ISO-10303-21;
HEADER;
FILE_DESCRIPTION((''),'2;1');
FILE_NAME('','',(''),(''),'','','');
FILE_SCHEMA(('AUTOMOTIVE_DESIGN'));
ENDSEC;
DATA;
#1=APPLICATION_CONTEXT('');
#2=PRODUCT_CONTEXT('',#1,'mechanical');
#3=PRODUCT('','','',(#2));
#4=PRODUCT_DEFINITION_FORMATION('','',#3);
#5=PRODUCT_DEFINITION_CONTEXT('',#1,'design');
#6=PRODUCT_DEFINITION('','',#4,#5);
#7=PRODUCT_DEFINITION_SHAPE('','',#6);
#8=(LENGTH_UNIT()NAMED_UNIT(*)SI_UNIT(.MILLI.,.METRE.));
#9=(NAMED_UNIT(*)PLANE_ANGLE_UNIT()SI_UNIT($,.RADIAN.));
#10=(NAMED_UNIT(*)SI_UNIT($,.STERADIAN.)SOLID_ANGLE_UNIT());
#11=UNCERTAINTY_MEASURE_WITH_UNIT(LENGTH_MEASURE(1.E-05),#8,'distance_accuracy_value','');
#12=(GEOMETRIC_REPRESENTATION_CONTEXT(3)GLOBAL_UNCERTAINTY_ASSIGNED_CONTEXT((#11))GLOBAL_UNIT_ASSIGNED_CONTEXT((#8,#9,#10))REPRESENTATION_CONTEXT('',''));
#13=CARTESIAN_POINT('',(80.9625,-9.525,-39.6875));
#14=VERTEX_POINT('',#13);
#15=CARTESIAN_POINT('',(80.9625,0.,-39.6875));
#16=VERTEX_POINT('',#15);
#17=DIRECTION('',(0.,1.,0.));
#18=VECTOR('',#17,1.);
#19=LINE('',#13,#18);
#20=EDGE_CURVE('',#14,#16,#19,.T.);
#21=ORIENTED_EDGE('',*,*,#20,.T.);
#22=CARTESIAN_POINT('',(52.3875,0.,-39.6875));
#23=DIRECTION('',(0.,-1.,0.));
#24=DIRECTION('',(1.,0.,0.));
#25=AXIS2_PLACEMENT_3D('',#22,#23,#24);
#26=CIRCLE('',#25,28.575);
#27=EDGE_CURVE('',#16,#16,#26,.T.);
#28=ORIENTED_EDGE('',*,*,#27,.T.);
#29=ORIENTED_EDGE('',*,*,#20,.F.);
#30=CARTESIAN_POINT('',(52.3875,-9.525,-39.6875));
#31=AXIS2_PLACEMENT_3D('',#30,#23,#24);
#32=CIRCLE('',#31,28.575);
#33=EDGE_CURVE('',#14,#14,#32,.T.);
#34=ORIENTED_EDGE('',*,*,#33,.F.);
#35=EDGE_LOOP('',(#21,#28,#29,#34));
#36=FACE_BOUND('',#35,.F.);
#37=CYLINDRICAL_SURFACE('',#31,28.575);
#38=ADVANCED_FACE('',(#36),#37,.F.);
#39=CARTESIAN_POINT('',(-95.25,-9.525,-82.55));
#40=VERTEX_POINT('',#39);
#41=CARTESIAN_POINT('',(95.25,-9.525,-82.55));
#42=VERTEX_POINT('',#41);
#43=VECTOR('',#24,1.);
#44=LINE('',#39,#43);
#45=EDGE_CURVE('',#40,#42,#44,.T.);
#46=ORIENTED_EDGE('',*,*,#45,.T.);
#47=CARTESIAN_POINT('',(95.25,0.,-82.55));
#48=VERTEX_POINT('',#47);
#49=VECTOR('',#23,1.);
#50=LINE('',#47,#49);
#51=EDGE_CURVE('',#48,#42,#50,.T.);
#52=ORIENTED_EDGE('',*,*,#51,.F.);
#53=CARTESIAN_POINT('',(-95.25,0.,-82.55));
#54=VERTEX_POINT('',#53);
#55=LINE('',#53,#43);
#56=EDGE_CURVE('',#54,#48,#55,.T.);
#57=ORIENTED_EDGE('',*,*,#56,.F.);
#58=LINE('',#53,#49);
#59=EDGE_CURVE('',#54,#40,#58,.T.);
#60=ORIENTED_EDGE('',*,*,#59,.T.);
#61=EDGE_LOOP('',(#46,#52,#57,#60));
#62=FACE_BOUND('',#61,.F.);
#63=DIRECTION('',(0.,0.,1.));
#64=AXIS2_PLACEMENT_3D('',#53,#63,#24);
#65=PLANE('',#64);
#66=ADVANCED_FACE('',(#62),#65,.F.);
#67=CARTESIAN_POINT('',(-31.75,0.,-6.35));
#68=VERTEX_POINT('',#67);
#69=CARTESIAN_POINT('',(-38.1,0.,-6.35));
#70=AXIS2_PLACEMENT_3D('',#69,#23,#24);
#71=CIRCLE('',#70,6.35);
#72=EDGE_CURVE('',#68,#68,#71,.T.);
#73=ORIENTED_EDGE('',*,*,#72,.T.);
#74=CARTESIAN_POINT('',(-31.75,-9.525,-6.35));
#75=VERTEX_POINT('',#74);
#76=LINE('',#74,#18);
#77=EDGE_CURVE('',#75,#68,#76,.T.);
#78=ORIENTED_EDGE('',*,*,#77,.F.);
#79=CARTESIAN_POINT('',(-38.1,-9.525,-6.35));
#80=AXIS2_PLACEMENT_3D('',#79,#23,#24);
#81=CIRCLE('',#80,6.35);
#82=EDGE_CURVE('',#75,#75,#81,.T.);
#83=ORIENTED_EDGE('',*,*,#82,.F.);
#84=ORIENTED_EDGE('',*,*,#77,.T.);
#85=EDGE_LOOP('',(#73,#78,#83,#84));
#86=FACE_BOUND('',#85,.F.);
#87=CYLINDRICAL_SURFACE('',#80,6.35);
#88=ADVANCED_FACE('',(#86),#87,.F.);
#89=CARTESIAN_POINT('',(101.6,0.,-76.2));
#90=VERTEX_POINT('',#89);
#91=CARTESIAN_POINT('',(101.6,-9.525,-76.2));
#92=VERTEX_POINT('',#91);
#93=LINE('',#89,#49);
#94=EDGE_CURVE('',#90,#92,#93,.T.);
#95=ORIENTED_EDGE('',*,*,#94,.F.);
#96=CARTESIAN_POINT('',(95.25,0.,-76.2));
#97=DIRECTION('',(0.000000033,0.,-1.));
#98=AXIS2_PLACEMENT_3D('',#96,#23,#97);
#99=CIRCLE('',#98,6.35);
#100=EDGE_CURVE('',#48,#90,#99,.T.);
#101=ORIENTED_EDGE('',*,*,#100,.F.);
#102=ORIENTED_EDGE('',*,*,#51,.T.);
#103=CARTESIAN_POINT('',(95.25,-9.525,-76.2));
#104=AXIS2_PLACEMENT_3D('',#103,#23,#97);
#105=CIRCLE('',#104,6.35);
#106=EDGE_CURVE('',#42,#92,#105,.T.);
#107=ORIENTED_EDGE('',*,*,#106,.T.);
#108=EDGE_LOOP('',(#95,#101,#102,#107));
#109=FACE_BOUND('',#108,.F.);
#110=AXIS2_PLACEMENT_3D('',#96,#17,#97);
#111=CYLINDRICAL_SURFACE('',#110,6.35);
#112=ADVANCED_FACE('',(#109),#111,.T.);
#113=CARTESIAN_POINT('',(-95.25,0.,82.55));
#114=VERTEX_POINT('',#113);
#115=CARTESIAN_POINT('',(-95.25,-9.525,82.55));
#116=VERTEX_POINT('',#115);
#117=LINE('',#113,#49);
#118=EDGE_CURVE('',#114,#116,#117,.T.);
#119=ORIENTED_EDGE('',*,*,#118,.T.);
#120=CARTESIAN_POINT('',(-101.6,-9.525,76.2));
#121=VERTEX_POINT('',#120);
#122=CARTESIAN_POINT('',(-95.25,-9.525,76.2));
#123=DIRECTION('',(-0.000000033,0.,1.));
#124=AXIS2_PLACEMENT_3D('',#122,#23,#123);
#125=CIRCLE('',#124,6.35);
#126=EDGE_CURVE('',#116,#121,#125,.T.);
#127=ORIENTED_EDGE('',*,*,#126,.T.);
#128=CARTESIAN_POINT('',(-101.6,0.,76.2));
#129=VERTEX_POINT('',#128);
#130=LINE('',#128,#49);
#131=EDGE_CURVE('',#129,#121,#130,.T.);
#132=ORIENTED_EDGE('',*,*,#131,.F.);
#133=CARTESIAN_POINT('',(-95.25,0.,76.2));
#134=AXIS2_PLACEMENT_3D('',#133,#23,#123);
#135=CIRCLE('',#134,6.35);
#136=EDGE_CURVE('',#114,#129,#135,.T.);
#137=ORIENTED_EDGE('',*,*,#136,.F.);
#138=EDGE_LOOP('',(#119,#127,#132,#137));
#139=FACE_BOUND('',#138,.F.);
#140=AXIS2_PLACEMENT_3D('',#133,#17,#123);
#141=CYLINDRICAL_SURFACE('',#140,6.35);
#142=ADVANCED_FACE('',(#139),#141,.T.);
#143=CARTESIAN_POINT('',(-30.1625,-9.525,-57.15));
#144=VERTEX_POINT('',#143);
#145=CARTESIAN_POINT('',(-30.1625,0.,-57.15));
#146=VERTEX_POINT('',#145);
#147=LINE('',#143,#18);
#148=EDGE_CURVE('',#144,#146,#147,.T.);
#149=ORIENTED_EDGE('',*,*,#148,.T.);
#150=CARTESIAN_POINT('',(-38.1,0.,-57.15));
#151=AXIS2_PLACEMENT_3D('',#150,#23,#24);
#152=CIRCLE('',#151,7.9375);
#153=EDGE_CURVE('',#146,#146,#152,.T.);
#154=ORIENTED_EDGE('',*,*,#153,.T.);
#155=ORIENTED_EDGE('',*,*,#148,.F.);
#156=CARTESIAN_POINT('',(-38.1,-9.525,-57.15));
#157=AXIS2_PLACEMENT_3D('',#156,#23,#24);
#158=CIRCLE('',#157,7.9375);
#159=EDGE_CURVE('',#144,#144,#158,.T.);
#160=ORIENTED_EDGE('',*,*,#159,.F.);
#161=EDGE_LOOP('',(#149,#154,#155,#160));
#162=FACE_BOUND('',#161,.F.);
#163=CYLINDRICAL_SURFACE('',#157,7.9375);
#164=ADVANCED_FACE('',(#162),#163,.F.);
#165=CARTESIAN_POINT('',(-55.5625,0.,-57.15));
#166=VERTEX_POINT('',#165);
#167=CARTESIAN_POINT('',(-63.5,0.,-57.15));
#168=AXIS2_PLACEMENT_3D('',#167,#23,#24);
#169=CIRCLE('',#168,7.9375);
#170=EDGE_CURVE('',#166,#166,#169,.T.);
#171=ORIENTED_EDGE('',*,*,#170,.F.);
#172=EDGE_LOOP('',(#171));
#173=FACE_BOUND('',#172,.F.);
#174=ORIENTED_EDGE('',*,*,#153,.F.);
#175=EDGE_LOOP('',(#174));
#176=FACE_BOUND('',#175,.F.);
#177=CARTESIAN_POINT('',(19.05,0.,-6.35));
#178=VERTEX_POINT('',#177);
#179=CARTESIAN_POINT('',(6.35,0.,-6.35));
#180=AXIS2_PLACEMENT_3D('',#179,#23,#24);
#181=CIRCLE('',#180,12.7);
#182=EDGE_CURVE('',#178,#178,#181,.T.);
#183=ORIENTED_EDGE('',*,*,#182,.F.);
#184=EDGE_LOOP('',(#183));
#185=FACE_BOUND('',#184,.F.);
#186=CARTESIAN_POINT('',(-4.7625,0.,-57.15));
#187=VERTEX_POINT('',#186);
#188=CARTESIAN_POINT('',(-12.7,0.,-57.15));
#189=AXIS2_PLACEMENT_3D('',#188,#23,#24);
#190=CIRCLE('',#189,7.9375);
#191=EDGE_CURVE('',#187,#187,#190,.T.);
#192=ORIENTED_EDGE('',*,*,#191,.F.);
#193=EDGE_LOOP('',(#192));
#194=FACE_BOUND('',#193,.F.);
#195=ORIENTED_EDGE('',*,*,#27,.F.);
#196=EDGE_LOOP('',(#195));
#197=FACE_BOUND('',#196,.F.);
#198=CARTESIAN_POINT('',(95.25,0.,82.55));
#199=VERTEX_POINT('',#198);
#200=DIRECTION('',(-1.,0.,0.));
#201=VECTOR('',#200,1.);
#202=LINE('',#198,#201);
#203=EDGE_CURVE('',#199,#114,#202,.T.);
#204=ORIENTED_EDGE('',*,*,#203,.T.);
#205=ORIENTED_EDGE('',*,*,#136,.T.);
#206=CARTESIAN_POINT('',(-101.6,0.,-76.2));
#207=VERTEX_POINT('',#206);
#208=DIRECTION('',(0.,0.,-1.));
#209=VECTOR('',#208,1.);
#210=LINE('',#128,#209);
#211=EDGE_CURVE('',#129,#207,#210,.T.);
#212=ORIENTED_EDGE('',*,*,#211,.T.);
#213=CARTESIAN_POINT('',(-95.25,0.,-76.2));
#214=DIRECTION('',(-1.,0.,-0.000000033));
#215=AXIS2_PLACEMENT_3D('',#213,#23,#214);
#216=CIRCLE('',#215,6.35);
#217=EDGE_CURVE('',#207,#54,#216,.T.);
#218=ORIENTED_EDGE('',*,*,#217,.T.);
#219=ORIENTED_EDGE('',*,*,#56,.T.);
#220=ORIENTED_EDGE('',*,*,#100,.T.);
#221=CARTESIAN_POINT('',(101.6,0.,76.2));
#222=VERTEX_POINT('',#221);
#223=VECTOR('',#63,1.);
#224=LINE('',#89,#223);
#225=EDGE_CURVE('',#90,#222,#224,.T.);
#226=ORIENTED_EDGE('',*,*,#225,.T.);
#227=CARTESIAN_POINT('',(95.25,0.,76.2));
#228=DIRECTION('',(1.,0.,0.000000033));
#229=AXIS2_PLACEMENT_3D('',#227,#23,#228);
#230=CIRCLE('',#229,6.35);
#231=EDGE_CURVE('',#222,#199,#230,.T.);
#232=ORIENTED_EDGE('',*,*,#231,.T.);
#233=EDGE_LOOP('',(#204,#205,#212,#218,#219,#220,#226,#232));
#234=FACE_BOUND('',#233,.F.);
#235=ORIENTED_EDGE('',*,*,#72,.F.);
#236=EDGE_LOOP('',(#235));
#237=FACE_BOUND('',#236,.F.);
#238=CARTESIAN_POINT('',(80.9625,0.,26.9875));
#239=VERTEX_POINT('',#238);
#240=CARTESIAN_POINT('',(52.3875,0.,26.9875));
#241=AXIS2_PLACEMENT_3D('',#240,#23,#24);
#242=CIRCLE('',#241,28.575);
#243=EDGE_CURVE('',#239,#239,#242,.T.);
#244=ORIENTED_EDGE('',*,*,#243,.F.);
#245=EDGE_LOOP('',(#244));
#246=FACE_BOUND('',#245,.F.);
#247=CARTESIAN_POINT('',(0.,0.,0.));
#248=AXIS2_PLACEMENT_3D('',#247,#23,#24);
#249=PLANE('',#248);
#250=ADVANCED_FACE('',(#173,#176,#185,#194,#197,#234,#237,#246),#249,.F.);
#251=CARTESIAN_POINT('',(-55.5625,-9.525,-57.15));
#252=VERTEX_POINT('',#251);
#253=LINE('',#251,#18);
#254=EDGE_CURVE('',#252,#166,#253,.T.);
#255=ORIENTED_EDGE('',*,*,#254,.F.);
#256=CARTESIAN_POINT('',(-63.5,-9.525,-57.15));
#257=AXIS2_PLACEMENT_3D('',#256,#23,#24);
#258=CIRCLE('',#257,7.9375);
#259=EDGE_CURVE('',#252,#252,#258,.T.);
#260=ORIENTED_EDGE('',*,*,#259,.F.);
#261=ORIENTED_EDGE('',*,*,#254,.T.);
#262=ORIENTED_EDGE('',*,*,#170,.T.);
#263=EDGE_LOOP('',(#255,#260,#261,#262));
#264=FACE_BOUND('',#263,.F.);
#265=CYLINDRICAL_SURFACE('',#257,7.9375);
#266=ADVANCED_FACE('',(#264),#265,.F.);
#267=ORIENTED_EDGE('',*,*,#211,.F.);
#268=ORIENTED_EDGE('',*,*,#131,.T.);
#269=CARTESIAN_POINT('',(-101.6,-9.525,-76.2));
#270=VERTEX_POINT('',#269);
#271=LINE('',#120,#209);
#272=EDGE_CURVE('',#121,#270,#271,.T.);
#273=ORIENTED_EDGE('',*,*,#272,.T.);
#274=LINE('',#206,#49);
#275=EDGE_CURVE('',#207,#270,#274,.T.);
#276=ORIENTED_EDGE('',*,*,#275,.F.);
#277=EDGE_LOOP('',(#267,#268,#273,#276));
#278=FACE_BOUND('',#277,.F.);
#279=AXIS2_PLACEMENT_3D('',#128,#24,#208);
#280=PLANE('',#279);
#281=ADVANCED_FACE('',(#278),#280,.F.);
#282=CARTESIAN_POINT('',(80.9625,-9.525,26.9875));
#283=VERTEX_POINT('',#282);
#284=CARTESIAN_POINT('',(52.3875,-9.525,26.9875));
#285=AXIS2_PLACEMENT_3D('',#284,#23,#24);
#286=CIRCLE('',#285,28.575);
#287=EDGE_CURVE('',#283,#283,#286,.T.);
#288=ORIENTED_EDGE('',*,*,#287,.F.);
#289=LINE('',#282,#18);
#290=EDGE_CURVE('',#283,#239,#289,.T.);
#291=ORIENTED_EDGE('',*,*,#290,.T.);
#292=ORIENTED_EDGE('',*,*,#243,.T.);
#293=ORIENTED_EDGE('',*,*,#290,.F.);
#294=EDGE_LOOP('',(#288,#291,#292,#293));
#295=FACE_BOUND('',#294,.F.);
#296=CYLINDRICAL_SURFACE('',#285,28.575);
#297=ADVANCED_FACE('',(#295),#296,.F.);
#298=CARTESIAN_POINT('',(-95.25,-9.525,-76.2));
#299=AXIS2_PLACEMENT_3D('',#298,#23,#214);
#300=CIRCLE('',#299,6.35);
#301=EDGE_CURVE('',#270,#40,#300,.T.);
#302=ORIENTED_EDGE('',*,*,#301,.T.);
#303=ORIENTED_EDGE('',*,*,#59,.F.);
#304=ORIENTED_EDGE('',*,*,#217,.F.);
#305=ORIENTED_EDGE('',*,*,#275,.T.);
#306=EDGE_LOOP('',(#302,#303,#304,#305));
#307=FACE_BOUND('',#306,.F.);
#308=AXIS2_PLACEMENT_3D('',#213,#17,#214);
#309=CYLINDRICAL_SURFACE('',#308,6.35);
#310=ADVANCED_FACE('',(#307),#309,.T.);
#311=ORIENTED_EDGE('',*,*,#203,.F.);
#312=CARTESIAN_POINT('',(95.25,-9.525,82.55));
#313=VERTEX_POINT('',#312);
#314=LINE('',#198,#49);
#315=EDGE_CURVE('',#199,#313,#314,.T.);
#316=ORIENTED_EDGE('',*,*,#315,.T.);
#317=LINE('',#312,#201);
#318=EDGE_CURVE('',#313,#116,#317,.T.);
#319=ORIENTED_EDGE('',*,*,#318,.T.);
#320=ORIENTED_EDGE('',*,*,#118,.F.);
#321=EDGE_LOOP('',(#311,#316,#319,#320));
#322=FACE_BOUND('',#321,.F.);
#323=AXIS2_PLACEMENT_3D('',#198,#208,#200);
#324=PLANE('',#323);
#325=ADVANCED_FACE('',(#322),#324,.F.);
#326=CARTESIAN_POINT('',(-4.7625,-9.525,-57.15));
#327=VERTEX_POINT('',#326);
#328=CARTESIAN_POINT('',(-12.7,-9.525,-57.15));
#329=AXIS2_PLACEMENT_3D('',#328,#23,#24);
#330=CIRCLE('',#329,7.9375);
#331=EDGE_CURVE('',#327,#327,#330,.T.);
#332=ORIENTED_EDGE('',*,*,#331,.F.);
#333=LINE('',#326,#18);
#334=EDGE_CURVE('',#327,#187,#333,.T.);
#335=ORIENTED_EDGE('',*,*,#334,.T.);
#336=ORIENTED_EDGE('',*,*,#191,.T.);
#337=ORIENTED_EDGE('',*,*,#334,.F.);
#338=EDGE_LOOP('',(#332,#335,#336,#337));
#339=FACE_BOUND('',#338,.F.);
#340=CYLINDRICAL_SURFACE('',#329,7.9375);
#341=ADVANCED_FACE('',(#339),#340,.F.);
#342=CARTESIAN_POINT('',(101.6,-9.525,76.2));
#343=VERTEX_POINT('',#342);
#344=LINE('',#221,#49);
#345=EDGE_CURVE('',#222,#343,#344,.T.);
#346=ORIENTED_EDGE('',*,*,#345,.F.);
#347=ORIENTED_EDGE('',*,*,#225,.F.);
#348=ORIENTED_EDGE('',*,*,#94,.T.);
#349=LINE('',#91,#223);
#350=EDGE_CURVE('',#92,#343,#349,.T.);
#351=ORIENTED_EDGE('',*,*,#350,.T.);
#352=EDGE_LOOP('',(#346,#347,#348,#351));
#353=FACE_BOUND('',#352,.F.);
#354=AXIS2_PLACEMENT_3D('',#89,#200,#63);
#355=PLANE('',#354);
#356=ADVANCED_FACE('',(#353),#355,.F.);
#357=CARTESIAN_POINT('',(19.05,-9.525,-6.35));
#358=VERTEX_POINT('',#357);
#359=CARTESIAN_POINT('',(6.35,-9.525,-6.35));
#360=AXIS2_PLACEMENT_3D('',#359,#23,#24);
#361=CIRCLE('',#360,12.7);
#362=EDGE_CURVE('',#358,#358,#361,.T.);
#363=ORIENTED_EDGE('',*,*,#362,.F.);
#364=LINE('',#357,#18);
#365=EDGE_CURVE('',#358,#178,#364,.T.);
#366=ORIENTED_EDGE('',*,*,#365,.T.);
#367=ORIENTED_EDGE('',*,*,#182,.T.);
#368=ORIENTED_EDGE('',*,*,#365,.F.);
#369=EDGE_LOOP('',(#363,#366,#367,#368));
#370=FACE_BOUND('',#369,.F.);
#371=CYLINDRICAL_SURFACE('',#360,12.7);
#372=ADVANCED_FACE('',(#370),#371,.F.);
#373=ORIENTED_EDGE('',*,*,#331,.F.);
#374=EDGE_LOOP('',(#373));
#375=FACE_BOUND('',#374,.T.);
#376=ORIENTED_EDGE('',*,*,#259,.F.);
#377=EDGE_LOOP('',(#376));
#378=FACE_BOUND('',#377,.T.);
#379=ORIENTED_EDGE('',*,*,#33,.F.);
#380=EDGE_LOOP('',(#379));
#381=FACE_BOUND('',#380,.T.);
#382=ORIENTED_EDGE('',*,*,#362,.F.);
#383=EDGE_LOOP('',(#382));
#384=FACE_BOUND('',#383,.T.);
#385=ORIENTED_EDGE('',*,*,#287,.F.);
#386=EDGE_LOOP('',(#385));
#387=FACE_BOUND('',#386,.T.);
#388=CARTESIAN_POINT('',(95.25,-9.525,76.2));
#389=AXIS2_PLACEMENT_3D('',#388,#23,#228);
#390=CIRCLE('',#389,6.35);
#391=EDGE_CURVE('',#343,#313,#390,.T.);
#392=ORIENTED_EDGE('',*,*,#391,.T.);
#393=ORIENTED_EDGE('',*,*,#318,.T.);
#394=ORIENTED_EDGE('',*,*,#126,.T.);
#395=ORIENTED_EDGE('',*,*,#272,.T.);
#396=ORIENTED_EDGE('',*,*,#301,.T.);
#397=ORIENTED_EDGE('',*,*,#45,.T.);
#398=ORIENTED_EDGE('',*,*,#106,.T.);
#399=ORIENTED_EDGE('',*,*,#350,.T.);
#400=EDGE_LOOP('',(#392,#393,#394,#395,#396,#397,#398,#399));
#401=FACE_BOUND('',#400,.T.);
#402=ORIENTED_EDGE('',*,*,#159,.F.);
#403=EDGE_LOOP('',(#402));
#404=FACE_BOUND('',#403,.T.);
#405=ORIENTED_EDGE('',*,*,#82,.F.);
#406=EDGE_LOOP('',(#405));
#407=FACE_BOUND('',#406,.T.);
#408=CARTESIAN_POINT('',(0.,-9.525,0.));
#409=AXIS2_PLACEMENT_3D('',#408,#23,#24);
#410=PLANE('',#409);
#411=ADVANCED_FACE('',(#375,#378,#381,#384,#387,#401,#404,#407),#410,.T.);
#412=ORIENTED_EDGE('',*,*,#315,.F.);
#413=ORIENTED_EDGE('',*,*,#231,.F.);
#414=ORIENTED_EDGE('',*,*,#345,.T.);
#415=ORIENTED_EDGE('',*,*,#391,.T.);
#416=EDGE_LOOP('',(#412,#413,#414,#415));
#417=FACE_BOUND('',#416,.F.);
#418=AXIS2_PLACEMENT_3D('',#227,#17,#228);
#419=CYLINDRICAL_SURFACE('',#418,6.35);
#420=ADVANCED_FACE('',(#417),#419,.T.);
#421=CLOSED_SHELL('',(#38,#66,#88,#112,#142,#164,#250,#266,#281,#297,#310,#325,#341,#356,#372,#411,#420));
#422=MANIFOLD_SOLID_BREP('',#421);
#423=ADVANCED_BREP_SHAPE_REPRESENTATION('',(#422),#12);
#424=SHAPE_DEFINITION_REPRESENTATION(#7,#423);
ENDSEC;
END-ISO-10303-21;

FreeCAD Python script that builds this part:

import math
import FreeCAD as App
import Part
import Sketcher
Q = App.Units.Quantity

doc = App.newDocument("Part")
body = doc.addObject("PartDesign::Body", "Body")

# Sketch on XZ plane
sketch1 = doc.addObject("Sketcher::SketchObject", "Sketch")
body.addObject(sketch1)
sketch1.AttachmentSupport = (doc.XZ_Plane, [""])
sketch1.MapMode = "FlatFace"
sketch1.addGeometry([
    Part.LineSegment(App.Vector(-95, -83, 0), App.Vector(95, -83, 0)),  # 0
    Part.ArcOfCircle(Part.Circle(App.Vector(95, -76, 0), App.Vector(0, 0, 1), 6), math.radians(-90), math.radians(0)),  # 1
    Part.LineSegment(App.Vector(102, -76, 0), App.Vector(102, 76, 0)),  # 2
    Part.ArcOfCircle(Part.Circle(App.Vector(95, 76, 0), App.Vector(0, 0, 1), 6), math.radians(0), math.radians(90)),  # 3
    Part.LineSegment(App.Vector(95, 83, 0), App.Vector(-95, 83, 0)),  # 4
    Part.ArcOfCircle(Part.Circle(App.Vector(-95, 76, 0), App.Vector(0, 0, 1), 6), math.radians(90), math.radians(180)),  # 5
    Part.LineSegment(App.Vector(-102, 76, 0), App.Vector(-102, -76, 0)),  # 6
    Part.ArcOfCircle(Part.Circle(App.Vector(-95, -76, 0), App.Vector(0, 0, 1), 6), math.radians(-180), math.radians(-90)),  # 7
], False)
sketch1.addConstraint([
    Sketcher.Constraint("Tangent", 0, 2, 1, 1),
    Sketcher.Constraint("Tangent", 1, 2, 2, 1),
    Sketcher.Constraint("Tangent", 2, 2, 3, 1),
    Sketcher.Constraint("Tangent", 3, 2, 4, 1),
    Sketcher.Constraint("Tangent", 4, 2, 5, 1),
    Sketcher.Constraint("Tangent", 5, 2, 6, 1),
    Sketcher.Constraint("Tangent", 6, 2, 7, 1),
    Sketcher.Constraint("Tangent", 7, 2, 0, 1),
    Sketcher.Constraint("Horizontal", 0),
    Sketcher.Constraint("Vertical", 2),
    Sketcher.Constraint("Horizontal", 4),
    Sketcher.Constraint("Vertical", 6),
    Sketcher.Constraint("Equal", 1, 3),
    Sketcher.Constraint("Equal", 3, 5),
    Sketcher.Constraint("Equal", 5, 7),
    Sketcher.Constraint("Symmetric", 1, 3, 5, 3, -1, 1),
    Sketcher.Constraint("DistanceY", 2, 1, 2, 2, Q("6 in")),
    Sketcher.Constraint("Radius", 1, Q("0.25 in")),
    Sketcher.Constraint("DistanceX", 0, 1, 0, 2, Q("7.5 in")),
])
pad1 = doc.addObject("PartDesign::Pad", "Pad")
body.addObject(pad1)
pad1.Profile = sketch1
pad1.Length = Q("0.375 in")

# Sketch on XZ plane
sketch2 = doc.addObject("Sketcher::SketchObject", "Sketch001")
body.addObject(sketch2)
sketch2.AttachmentSupport = (doc.XZ_Plane, [""])
sketch2.MapMode = "FlatFace"
sketch2.AttachmentOffset = App.Placement(App.Vector(0, 0, 0.375 * 25.4), App.Rotation())
sketch2.addGeometry([
    Part.Circle(App.Vector(52, 27, 0), App.Vector(0, 0, 1), 29),  # 0
    Part.Circle(App.Vector(52, -40, 0), App.Vector(0, 0, 1), 29),  # 1
    Part.Circle(App.Vector(-64, -57, 0), App.Vector(0, 0, 1), 8),  # 2
    Part.Circle(App.Vector(-38, -57, 0), App.Vector(0, 0, 1), 8),  # 3
    Part.Circle(App.Vector(-13, -57, 0), App.Vector(0, 0, 1), 8),  # 4
    Part.Circle(App.Vector(-38, -6, 0), App.Vector(0, 0, 1), 6),  # 5
    Part.Circle(App.Vector(6, -6, 0), App.Vector(0, 0, 1), 13),  # 6
], False)
sketch2.addConstraint([
    Sketcher.Constraint("Equal", 0, 1),
    Sketcher.Constraint("Equal", 2, 3),
    Sketcher.Constraint("Equal", 3, 4),
    Sketcher.Constraint("Horizontal", 2, 3, 3, 3),
    Sketcher.Constraint("Horizontal", 3, 3, 4, 3),
    Sketcher.Constraint("Horizontal", 5, 3, 6, 3),
    Sketcher.Constraint("Vertical", 0, 3, 1, 3),
    Sketcher.Constraint("Vertical", 3, 3, 5, 3),
    Sketcher.Constraint("Diameter", 6, Q("1 in")),
    Sketcher.Constraint("Diameter", 5, Q("0.5 in")),
    Sketcher.Constraint("Diameter", 0, Q("2.25 in")),
    Sketcher.Constraint("Diameter", 2, Q("0.625 in")),
    Sketcher.Constraint("DistanceX", 2, 3, 3, 3, Q("1 in")),
    Sketcher.Constraint("DistanceX", 3, 3, 4, 3, Q("1 in")),
    Sketcher.Constraint("DistanceY", 3, 3, 5, 3, Q("2 in")),
    Sketcher.Constraint("DistanceX", 2, 3, -1, 1, Q("2.5 in")),
    Sketcher.Constraint("DistanceY", 2, 3, -1, 1, Q("2.25 in")),
    Sketcher.Constraint("DistanceX", -1, 1, 6, 3, Q("0.25 in")),
    Sketcher.Constraint("DistanceX", -1, 1, 0, 3, Q("2.0625 in")),
    Sketcher.Constraint("DistanceY", -1, 1, 0, 3, Q("1.0625 in")),
    Sketcher.Constraint("DistanceY", 1, 3, -1, 1, Q("1.5625 in")),
])
pocket1 = doc.addObject("PartDesign::Pocket", "Pocket")
body.addObject(pocket1)
pocket1.Profile = sketch2
pocket1.Type = "ThroughAll"

doc.recompute()
